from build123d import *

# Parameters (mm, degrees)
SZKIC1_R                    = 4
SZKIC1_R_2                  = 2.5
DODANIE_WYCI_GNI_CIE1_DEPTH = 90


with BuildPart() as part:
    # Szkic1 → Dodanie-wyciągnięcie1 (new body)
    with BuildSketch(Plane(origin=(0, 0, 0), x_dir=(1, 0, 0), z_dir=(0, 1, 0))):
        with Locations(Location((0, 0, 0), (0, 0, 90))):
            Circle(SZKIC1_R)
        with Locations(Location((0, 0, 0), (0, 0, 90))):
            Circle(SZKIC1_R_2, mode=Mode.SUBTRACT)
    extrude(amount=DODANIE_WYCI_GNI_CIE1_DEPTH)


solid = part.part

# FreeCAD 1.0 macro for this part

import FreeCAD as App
import Part
import Sketcher
from FreeCAD import Vector
Q = App.Units.Quantity

doc = App.newDocument("Part")
params = doc.addObject("Spreadsheet::Sheet", "Params")
for row, (alias, value) in enumerate([
    ("sketch1_diameter", "8 mm"),
    ("sketch1_diameter2", "5 mm"),
    ("pad1_length", "90 mm"),
], start=1):
    params.set(f"A{row}", alias)
    params.set(f"B{row}", "=" + value)
    params.setAlias(f"B{row}", alias)

body = doc.addObject("PartDesign::Body", "Body")

sketch1 = body.newObject("Sketcher::SketchObject", "Sketch")
sketch1.AttachmentSupport = (doc.getObject("XZ_Plane"), [""])
sketch1.MapMode = "FlatFace"
sketch1.addGeometry([
    Part.Circle(Vector(0, 0, 0), Vector(0, 0, 1), 4),
    Part.Circle(Vector(0, 0, 0), Vector(0, 0, 1), 2.5),
], False)
sketch1.addConstraint([
    Sketcher.Constraint("Coincident", 0, 3, -1, 1),
    Sketcher.Constraint("Coincident", 1, 3, -1, 1),
    Sketcher.Constraint("Diameter", 0, Q("8 mm")),
    Sketcher.Constraint("Diameter", 1, Q("5 mm")),
])
sketch1.setExpression("Constraints[2]", "Params.sketch1_diameter")
sketch1.setExpression("Constraints[3]", "Params.sketch1_diameter2")
pad1 = body.newObject("PartDesign::Pad", "Pad")
pad1.Profile = sketch1
pad1.setExpression("Length", "Params.pad1_length")
pad1.Reversed = True

doc.recompute()
